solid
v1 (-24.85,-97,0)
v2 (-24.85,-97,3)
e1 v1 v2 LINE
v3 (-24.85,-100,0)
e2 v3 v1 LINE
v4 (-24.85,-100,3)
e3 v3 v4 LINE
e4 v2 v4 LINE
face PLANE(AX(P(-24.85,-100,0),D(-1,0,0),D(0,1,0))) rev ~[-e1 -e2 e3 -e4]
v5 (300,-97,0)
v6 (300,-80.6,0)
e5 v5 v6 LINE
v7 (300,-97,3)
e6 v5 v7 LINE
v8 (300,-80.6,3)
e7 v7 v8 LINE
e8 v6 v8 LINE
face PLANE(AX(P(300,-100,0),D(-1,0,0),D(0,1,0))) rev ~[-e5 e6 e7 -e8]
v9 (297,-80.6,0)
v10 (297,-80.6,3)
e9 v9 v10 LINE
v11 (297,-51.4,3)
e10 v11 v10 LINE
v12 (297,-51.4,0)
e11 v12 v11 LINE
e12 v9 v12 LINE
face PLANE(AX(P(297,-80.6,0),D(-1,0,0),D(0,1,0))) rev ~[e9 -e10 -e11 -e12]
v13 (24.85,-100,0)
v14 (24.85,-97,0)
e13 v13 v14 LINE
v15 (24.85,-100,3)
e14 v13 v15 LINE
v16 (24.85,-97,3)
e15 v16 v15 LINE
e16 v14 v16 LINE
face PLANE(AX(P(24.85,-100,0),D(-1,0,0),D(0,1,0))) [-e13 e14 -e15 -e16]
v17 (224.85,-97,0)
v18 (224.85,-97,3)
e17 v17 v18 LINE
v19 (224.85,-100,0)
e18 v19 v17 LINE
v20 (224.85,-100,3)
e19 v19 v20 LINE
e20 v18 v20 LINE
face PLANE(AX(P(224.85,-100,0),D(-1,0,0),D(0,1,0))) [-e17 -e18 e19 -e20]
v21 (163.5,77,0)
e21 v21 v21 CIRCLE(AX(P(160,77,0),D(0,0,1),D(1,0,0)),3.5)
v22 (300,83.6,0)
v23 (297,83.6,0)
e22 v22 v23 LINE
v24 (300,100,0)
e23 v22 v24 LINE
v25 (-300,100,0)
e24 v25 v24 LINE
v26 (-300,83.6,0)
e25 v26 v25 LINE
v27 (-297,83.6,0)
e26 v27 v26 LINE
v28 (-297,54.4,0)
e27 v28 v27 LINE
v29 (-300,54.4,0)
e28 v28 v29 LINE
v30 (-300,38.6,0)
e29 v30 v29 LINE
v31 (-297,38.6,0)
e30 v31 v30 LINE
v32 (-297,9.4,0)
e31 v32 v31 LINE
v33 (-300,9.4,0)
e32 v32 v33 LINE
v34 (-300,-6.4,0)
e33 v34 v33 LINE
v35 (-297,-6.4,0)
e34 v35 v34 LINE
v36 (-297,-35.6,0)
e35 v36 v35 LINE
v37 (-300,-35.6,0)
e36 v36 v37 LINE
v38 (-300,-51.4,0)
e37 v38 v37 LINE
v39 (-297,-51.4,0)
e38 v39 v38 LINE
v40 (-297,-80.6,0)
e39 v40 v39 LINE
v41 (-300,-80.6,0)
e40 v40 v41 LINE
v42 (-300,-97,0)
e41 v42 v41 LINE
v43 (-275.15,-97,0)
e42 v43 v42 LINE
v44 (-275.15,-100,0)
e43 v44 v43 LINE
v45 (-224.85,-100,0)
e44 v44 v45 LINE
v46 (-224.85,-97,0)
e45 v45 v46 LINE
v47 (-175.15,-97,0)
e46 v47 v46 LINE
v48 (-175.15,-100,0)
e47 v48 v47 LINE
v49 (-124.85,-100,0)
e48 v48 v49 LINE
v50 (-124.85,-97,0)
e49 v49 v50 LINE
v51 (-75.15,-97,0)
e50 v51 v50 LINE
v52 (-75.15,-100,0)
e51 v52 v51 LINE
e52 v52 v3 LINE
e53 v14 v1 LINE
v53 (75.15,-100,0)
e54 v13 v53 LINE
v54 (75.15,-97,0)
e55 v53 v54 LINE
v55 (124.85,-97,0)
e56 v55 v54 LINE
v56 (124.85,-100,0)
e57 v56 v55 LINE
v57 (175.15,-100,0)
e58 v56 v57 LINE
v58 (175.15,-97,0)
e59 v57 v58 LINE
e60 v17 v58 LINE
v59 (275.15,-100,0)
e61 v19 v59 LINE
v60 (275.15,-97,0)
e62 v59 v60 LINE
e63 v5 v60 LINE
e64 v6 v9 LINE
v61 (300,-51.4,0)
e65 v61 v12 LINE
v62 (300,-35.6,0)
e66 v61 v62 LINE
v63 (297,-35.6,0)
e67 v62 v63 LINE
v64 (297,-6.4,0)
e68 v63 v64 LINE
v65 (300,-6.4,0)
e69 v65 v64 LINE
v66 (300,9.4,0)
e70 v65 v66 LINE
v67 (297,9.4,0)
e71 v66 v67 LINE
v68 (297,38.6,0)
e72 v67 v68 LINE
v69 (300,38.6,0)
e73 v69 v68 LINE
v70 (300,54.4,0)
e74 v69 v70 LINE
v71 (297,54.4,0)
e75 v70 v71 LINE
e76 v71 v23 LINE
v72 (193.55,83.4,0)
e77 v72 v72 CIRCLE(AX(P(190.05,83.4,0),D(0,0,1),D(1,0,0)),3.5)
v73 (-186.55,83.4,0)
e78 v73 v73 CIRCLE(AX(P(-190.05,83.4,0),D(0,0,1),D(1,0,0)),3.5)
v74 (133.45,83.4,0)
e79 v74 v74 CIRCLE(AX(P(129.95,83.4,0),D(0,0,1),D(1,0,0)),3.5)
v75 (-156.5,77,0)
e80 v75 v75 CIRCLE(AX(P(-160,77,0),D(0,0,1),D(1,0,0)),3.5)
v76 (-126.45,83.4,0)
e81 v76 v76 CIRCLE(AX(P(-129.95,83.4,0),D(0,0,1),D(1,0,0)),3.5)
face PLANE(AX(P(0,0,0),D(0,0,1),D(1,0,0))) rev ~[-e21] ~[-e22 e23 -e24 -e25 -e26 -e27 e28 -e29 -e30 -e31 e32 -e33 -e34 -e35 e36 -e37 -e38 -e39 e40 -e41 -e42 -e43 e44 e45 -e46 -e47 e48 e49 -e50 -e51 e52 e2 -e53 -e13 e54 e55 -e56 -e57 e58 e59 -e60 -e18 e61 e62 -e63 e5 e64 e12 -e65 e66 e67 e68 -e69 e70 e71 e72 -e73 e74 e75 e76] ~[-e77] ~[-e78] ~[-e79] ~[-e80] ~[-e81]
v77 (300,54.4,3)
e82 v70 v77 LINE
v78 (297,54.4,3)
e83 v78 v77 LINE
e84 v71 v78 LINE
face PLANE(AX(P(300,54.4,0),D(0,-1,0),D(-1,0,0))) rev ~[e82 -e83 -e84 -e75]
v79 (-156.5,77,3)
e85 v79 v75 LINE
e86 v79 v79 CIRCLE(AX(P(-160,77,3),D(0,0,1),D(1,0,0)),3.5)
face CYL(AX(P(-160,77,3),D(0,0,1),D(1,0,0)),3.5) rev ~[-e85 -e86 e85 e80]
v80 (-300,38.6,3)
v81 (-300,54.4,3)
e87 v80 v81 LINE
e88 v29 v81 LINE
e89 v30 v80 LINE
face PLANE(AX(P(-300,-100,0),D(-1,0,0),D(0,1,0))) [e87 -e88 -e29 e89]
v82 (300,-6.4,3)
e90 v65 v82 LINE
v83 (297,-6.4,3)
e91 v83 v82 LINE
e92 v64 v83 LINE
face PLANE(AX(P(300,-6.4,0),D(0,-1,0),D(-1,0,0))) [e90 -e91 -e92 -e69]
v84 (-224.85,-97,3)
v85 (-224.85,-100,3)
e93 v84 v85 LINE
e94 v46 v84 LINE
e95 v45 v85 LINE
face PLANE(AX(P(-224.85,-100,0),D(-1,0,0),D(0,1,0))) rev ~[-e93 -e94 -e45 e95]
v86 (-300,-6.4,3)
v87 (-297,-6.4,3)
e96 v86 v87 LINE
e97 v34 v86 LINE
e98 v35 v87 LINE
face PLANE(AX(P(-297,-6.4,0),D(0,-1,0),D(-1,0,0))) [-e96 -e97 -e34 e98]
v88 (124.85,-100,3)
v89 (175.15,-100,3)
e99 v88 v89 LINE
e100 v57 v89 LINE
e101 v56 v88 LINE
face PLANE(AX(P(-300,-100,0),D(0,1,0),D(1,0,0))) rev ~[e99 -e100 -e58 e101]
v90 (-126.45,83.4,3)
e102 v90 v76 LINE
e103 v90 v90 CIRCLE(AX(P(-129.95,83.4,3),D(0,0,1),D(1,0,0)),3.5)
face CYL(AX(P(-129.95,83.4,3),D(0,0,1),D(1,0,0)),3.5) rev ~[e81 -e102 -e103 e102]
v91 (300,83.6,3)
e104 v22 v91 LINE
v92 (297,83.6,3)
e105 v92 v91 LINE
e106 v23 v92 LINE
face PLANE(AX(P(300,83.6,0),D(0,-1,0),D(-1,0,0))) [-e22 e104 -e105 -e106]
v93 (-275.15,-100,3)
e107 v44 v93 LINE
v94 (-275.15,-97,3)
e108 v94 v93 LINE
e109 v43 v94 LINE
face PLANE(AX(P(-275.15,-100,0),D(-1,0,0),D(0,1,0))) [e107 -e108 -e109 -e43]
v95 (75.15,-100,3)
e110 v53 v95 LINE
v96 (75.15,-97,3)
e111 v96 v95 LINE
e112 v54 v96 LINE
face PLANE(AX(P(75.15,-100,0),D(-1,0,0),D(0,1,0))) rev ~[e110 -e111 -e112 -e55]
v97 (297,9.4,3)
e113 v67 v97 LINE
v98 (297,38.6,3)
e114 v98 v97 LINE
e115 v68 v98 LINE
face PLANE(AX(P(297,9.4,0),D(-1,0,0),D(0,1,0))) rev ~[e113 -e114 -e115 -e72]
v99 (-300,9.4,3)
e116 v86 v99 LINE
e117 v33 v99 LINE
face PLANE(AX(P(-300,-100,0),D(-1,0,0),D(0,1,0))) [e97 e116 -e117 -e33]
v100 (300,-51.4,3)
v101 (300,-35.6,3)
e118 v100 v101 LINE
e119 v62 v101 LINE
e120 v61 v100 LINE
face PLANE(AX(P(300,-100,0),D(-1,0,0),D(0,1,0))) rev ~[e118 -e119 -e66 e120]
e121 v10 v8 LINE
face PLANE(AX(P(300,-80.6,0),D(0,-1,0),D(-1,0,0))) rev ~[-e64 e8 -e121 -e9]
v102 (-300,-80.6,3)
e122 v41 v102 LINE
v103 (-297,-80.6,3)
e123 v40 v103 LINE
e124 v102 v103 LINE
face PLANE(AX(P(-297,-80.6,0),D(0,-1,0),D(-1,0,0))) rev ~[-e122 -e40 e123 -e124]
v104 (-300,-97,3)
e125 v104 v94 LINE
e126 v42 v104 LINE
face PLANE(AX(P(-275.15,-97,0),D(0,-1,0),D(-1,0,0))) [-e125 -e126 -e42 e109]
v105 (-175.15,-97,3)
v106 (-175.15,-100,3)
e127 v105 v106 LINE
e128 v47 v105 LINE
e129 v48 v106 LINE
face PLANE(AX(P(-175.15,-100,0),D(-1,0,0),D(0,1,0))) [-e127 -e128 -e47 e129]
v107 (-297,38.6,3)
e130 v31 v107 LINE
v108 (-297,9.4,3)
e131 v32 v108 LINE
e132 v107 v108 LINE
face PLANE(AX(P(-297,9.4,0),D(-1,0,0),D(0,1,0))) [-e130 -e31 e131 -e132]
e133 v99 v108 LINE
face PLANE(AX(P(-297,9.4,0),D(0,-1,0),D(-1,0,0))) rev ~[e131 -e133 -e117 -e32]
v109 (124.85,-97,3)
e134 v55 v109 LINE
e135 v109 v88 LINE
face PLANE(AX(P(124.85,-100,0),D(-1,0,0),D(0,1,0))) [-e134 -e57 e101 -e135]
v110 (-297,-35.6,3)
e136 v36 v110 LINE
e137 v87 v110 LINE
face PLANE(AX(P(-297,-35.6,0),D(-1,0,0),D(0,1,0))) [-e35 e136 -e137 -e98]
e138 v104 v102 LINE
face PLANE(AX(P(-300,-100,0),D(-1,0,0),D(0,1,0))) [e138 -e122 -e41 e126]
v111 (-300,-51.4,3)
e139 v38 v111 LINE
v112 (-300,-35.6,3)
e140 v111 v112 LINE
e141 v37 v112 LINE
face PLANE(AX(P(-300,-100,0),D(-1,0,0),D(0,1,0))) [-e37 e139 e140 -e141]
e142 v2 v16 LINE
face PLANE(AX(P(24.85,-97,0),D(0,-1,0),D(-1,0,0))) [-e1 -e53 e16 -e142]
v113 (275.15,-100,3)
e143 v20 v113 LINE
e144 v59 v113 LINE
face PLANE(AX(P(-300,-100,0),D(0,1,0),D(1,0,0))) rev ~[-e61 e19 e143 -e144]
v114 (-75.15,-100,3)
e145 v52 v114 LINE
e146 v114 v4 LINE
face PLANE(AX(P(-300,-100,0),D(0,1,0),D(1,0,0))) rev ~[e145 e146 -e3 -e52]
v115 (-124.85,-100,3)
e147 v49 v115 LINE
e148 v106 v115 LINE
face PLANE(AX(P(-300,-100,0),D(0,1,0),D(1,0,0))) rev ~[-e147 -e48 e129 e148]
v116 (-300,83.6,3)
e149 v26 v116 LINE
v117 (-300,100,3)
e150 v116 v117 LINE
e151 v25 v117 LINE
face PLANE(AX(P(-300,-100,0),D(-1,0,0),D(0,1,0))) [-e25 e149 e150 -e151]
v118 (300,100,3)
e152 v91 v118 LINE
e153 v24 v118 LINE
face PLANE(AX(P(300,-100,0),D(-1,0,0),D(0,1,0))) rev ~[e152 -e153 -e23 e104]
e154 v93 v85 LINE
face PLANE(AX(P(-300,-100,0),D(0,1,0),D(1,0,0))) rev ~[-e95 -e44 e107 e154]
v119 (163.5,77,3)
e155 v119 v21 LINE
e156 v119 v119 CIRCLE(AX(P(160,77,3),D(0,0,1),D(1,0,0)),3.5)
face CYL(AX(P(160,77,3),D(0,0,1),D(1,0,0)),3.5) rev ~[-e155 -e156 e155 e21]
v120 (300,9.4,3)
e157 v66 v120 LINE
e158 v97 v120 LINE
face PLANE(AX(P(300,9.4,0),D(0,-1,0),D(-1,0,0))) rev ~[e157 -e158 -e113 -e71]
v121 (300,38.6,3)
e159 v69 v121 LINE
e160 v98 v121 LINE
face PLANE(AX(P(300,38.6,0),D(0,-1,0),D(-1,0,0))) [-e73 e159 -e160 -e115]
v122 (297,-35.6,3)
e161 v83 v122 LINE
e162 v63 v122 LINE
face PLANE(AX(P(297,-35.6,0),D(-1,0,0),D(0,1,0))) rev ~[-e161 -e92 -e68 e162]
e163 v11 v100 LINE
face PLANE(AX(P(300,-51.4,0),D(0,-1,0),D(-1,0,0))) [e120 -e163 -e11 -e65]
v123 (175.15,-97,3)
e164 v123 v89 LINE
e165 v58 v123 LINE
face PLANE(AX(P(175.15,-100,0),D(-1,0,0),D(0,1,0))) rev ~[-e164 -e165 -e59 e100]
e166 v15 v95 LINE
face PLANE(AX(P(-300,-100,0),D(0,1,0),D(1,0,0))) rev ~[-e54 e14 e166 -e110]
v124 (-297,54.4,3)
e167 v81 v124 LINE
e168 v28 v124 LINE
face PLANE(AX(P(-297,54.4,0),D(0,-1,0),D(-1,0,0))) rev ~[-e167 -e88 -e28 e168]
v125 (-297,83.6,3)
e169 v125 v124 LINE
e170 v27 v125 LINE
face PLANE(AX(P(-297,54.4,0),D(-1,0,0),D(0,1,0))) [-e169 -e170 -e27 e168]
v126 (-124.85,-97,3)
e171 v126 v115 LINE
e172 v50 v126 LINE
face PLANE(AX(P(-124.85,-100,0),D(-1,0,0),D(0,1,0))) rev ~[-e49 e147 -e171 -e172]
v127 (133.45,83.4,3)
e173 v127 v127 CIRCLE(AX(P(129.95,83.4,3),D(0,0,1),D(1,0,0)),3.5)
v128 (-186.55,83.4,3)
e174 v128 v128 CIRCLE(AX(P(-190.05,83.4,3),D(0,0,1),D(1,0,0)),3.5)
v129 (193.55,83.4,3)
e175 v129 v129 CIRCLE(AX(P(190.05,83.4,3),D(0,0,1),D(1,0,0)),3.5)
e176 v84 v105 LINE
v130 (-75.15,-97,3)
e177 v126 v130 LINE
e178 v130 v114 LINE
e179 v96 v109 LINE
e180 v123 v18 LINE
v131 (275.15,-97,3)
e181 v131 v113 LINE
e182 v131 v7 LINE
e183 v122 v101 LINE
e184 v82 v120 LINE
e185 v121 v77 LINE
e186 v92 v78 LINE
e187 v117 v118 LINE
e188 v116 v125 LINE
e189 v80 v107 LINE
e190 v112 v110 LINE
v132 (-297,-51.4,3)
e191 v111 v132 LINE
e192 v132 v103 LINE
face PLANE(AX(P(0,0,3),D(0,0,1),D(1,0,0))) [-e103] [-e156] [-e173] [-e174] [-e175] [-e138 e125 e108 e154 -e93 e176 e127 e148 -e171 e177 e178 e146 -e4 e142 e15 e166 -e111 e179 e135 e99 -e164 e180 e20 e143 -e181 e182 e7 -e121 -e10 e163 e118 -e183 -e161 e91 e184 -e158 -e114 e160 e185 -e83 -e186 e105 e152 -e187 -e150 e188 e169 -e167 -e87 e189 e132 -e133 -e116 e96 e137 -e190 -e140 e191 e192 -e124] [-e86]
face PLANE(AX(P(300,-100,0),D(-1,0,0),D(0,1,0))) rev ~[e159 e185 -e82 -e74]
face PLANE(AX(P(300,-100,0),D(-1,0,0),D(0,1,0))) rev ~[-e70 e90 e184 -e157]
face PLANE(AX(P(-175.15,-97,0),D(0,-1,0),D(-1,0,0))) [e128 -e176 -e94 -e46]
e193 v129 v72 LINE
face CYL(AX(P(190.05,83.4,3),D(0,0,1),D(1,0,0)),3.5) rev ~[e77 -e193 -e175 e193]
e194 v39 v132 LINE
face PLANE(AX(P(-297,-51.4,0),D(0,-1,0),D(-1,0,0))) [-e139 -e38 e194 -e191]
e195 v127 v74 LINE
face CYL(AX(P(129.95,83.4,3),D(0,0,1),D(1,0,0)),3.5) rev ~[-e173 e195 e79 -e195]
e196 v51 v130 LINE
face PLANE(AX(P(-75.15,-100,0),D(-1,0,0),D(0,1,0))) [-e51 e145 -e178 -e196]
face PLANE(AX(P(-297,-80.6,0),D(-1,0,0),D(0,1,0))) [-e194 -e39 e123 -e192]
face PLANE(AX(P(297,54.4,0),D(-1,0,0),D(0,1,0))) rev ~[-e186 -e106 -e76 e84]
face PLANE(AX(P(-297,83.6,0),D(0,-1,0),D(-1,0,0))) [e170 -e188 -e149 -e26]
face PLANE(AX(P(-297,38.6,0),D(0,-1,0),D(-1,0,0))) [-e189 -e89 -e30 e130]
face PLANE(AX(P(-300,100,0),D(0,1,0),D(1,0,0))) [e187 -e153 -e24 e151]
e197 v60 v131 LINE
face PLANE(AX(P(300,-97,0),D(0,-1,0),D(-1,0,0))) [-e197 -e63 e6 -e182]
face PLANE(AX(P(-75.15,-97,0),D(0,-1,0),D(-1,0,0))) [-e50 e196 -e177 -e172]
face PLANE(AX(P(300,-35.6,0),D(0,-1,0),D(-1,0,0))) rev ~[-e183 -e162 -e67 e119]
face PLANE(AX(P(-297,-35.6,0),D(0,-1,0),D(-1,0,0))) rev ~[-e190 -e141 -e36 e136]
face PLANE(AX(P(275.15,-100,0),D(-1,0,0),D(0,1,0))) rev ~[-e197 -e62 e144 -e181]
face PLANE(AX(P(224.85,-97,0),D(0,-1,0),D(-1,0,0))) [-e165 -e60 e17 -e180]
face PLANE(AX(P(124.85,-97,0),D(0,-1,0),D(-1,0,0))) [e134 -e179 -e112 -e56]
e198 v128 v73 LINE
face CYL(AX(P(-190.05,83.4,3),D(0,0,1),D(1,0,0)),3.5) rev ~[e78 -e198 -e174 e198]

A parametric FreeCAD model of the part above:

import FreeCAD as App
import Part
import Sketcher


def add_polygon(sketch, points):
    """Adds a closed chain of lines whose ends are joined by coincident constraints."""
    first, n = sketch.GeometryCount, len(points)
    for a, b in zip(points, points[1:] + points[:1]):
        sketch.addGeometry(Part.LineSegment(App.Vector(*a, 0), App.Vector(*b, 0)), False)
    for i in range(n):
        sketch.addConstraint(Sketcher.Constraint("Coincident", first + i, 2, first + (i + 1) % n, 1))

doc = App.newDocument("Part")
params = doc.addObject("Spreadsheet::Sheet", "Params")
for row, (alias, value) in enumerate([
    ("sketch1_width", "600 mm"),
    ("sketch1_height", "200 mm"),
    ("pad1_length", "3 mm"),
    ("sketch2_width", "3 mm"),
    ("sketch2_width2", "49.7 mm"),
    ("sketch2_height", "29.2 mm"),
    ("sketch3_diameter", "7 mm"),
], start=1):
    params.set(f"A{row}", alias)
    params.set(f"B{row}", "=" + value)
    params.setAlias(f"B{row}", alias)

body = doc.addObject("PartDesign::Body", "Body")

# Sketch on XY plane
sketch1 = body.newObject("Sketcher::SketchObject", "Sketch")
sketch1.AttachmentSupport = (doc.getObject("XY_Plane"), [""])
sketch1.MapMode = "FlatFace"
add_polygon(sketch1, [(-300, 100), (-300, -100), (300, -100), (300, 100)])  # lines 0-3
sketch1.addConstraint([
    Sketcher.Constraint("Vertical", 0),
    Sketcher.Constraint("Horizontal", 1),
    Sketcher.Constraint("Vertical", 2),
    Sketcher.Constraint("Horizontal", 3),
    Sketcher.Constraint("Symmetric", 0, 2, 2, 2, -1, 1),
    Sketcher.Constraint("DistanceX", 1, 1, 1, 2, 600.0),
    Sketcher.Constraint("DistanceY", 0, 2, 0, 1, 200.0),
])
sketch1.setExpression("Constraints[9]", "Params.sketch1_width")
sketch1.setExpression("Constraints[10]", "Params.sketch1_height")
pad1 = body.newObject("PartDesign::Pad", "Pad")
pad1.Profile = sketch1
pad1.setExpression("Length", "Params.pad1_length")

# Sketch on XY plane
sketch2 = body.newObject("Sketcher::SketchObject", "Sketch001")
sketch2.AttachmentSupport = (doc.getObject("XY_Plane"), [""])
sketch2.MapMode = "FlatFace"
add_polygon(sketch2, [(300, 83.6), (300, 54.4), (297, 54.4), (297, 83.6)])  # lines 0-3
add_polygon(sketch2, [(-297, 83.6), (-297, 54.4), (-300, 54.4), (-300, 83.6)])  # lines 4-7
add_polygon(sketch2, [(300, 38.6), (300, 9.4), (297, 9.4), (297, 38.6)])  # lines 8-11
add_polygon(sketch2, [(-297, 38.6), (-297, 9.4), (-300, 9.4), (-300, 38.6)])  # lines 12-15
add_polygon(sketch2, [(300, -6.4), (300, -35.6), (297, -35.6), (297, -6.4)])  # lines 16-19
add_polygon(sketch2, [(-297, -6.4), (-297, -35.6), (-300, -35.6), (-300, -6.4)])  # lines 20-23
add_polygon(sketch2, [(300, -51.4), (300, -80.6), (297, -80.6), (297, -51.4)])  # lines 24-27
add_polygon(sketch2, [(-297, -51.4), (-297, -80.6), (-300, -80.6), (-300, -51.4)])  # lines 28-31
add_polygon(sketch2, [(300, -97), (300, -100), (275.15, -100), (275.15, -97)])  # lines 32-35
add_polygon(sketch2, [(-275.15, -97), (-275.15, -100), (-300, -100), (-300, -97)])  # lines 36-39
add_polygon(sketch2, [(224.85, -97), (224.85, -100), (175.15, -100), (175.15, -97)])  # lines 40-43
add_polygon(sketch2, [(-175.15, -97), (-175.15, -100), (-224.85, -100), (-224.85, -97)])  # lines 44-47
add_polygon(sketch2, [(124.85, -97), (124.85, -100), (75.15, -100), (75.15, -97)])  # lines 48-51
add_polygon(sketch2, [(-75.15, -97), (-75.15, -100), (-124.85, -100), (-124.85, -97)])  # lines 52-55
add_polygon(sketch2, [(24.85, -97), (24.85, -100), (-24.85, -100), (-24.85, -97)])  # lines 56-59
sketch2.addConstraint([
    Sketcher.Constraint("Vertical", 0),
    Sketcher.Constraint("Horizontal", 1),
    Sketcher.Constraint("Vertical", 2),
    Sketcher.Constraint("Horizontal", 3),
    Sketcher.Constraint("Vertical", 4),
    Sketcher.Constraint("Horizontal", 5),
    Sketcher.Constraint("Vertical", 6),
    Sketcher.Constraint("Horizontal", 7),
    Sketcher.Constraint("Vertical", 8),
    Sketcher.Constraint("Horizontal", 9),
    Sketcher.Constraint("Vertical", 10),
    Sketcher.Constraint("Horizontal", 11),
    Sketcher.Constraint("Vertical", 12),
    Sketcher.Constraint("Horizontal", 13),
    Sketcher.Constraint("Vertical", 14),
    Sketcher.Constraint("Horizontal", 15),
    Sketcher.Constraint("Vertical", 16),
    Sketcher.Constraint("Horizontal", 17),
    Sketcher.Constraint("Vertical", 18),
    Sketcher.Constraint("Horizontal", 19),
    Sketcher.Constraint("Vertical", 20),
    Sketcher.Constraint("Horizontal", 21),
    Sketcher.Constraint("Vertical", 22),
    Sketcher.Constraint("Horizontal", 23),
    Sketcher.Constraint("Vertical", 24),
    Sketcher.Constraint("Horizontal", 25),
    Sketcher.Constraint("Vertical", 26),
    Sketcher.Constraint("Horizontal", 27),
    Sketcher.Constraint("Vertical", 28),
    Sketcher.Constraint("Horizontal", 29),
    Sketcher.Constraint("Vertical", 30),
    Sketcher.Constraint("Horizontal", 31),
    Sketcher.Constraint("Vertical", 32),
    Sketcher.Constraint("Horizontal", 33),
    Sketcher.Constraint("Vertical", 34),
    Sketcher.Constraint("Horizontal", 35),
    Sketcher.Constraint("Vertical", 36),
    Sketcher.Constraint("Horizontal", 37),
    Sketcher.Constraint("Vertical", 38),
    Sketcher.Constraint("Horizontal", 39),
    Sketcher.Constraint("Vertical", 40),
    Sketcher.Constraint("Horizontal", 41),
    Sketcher.Constraint("Vertical", 42),
    Sketcher.Constraint("Horizontal", 43),
    Sketcher.Constraint("Vertical", 44),
    Sketcher.Constraint("Horizontal", 45),
    Sketcher.Constraint("Vertical", 46),
    Sketcher.Constraint("Horizontal", 47),
    Sketcher.Constraint("Vertical", 48),
    Sketcher.Constraint("Horizontal", 49),
    Sketcher.Constraint("Vertical", 50),
    Sketcher.Constraint("Horizontal", 51),
    Sketcher.Constraint("Vertical", 52),
    Sketcher.Constraint("Horizontal", 53),
    Sketcher.Constraint("Vertical", 54),
    Sketcher.Constraint("Horizontal", 55),
    Sketcher.Constraint("Vertical", 56),
    Sketcher.Constraint("Horizontal", 57),
    Sketcher.Constraint("Vertical", 58),
    Sketcher.Constraint("Horizontal", 59),
    Sketcher.Constraint("Symmetric", 1, 2, 4, 2, -2),
    Sketcher.Constraint("Symmetric", 3, 2, 6, 2, -2),
    Sketcher.Constraint("Symmetric", 9, 2, 12, 2, -2),
    Sketcher.Constraint("Symmetric", 11, 2, 14, 2, -2),
    Sketcher.Constraint("Symmetric", 17, 2, 20, 2, -2),
    Sketcher.Constraint("Symmetric", 19, 2, 22, 2, -2),
    Sketcher.Constraint("Symmetric", 25, 2, 28, 2, -2),
    Sketcher.Constraint("Symmetric", 27, 2, 30, 2, -2),
    Sketcher.Constraint("Symmetric", 33, 2, 36, 2, -2),
    Sketcher.Constraint("Symmetric", 35, 2, 38, 2, -2),
    Sketcher.Constraint("Symmetric", 41, 2, 44, 2, -2),
    Sketcher.Constraint("Symmetric", 43, 2, 46, 2, -2),
    Sketcher.Constraint("Symmetric", 49, 2, 52, 2, -2),
    Sketcher.Constraint("Symmetric", 51, 2, 54, 2, -2),
    Sketcher.Constraint("Horizontal", 37, 2, 40, 2),
    Sketcher.Constraint("Horizontal", 39, 2, 42, 2),
    Sketcher.Constraint("Horizontal", 45, 2, 48, 2),
    Sketcher.Constraint("Horizontal", 47, 2, 50, 2),
    Sketcher.Constraint("Horizontal", 53, 2, 56, 2),
    Sketcher.Constraint("Horizontal", 55, 2, 58, 2),
    Sketcher.Constraint("Vertical", 3, 2, 8, 2),
    Sketcher.Constraint("Vertical", 2, 2, 9, 2),
    Sketcher.Constraint("Vertical", 11, 2, 16, 2),
    Sketcher.Constraint("Vertical", 10, 2, 17, 2),
    Sketcher.Constraint("Vertical", 19, 2, 24, 2),
    Sketcher.Constraint("Vertical", 18, 2, 25, 2),
    Sketcher.Constraint("Vertical", 27, 2, 32, 2),
    Sketcher.Constraint("Equal", 47, 49),
    Sketcher.Constraint("Equal", 55, 57),
    Sketcher.Constraint("Equal", 6, 8),
    Sketcher.Constraint("Equal", 14, 16),
    Sketcher.Constraint("Equal", 22, 24),
    Sketcher.Constraint("Equal", 31, 32),
    Sketcher.Constraint("DistanceX", 1, 2, 1, 1, 3.0),
    Sketcher.Constraint("DistanceX", 41, 2, 41, 1, 49.7),
    Sketcher.Constraint("DistanceY", 0, 2, 0, 1, 29.2),
    Sketcher.Constraint("DistanceX", -1, 1, 0, 2, 300.0),
    Sketcher.Constraint("DistanceY", 32, 2, -1, 1, 100.0),
    Sketcher.Constraint("DistanceY", 8, 2, 0, 2, 45.0),
    Sketcher.Constraint("DistanceY", 16, 2, 8, 2, 45.0),
    Sketcher.Constraint("DistanceY", 24, 2, 16, 2, 45.0),
    Sketcher.Constraint("DistanceX", 41, 2, 33, 2, 100.0),
    Sketcher.Constraint("DistanceX", 48, 2, 40, 2, 100.0),
    Sketcher.Constraint("DistanceX", 56, 2, 48, 2, 100.0),
    Sketcher.Constraint("DistanceX", 52, 2, 56, 2, 100.0),
    Sketcher.Constraint("DistanceY", -1, 1, 0, 2, 54.4),
])
sketch2.setExpression("Constraints[153]", "Params.sketch2_width")
sketch2.setExpression("Constraints[154]", "Params.sketch2_width2")
sketch2.setExpression("Constraints[155]", "Params.sketch2_height")
pocket1 = body.newObject("PartDesign::Pocket", "Pocket")
pocket1.Profile = sketch2
pocket1.Type = "ThroughAll"
pocket1.Reversed = True

# Sketch on XY plane
sketch3 = body.newObject("Sketcher::SketchObject", "Sketch002")
sketch3.AttachmentSupport = (doc.getObject("XY_Plane"), [""])
sketch3.MapMode = "FlatFace"
sketch3.AttachmentOffset = App.Placement(App.Vector(0, 0, 3), App.Rotation())
sketch3.addGeometry([
    Part.Circle(App.Vector(-160, 77, 0), App.Vector(0, 0, 1), 3.5),  # 0
    Part.Circle(App.Vector(-129.95, 83.4, 0), App.Vector(0, 0, 1), 3.5),  # 1
    Part.Circle(App.Vector(129.95, 83.4, 0), App.Vector(0, 0, 1), 3.5),  # 2
    Part.Circle(App.Vector(160, 77, 0), App.Vector(0, 0, 1), 3.5),  # 3
    Part.Circle(App.Vector(190.05, 83.4, 0), App.Vector(0, 0, 1), 3.5),  # 4
    Part.Circle(App.Vector(-190.05, 83.4, 0), App.Vector(0, 0, 1), 3.5),  # 5
], False)
sketch3.addConstraint([
    Sketcher.Constraint("Equal", 0, 1),
    Sketcher.Constraint("Equal", 1, 2),
    Sketcher.Constraint("Equal", 2, 3),
    Sketcher.Constraint("Equal", 3, 4),
    Sketcher.Constraint("Equal", 4, 5),
    Sketcher.Constraint("Symmetric", 1, 3, 2, 3, -2),
    Sketcher.Constraint("Symmetric", 0, 3, 3, 3, -2),
    Sketcher.Constraint("Symmetric", 4, 3, 5, 3, -2),
    Sketcher.Constraint("Horizontal", 2, 3, 4, 3),
    Sketcher.Constraint("Diameter", 0, 7.0),
    Sketcher.Constraint("DistanceX", 0, 3, -1, 1, 160.0),
    Sketcher.Constraint("DistanceY", -1, 1, 0, 3, 77.0),
    Sketcher.Constraint("DistanceX", 1, 3, 4, 3, 320.0),
    Sketcher.Constraint("DistanceY", -1, 1, 1, 3, 83.4),
    Sketcher.Constraint("DistanceX", 1, 3, 2, 3, 259.9),
])
sketch3.setExpression("Constraints[9]", "Params.sketch3_diameter")
pocket2 = body.newObject("PartDesign::Pocket", "Pocket001")
pocket2.Profile = sketch3
pocket2.Type = "ThroughAll"

doc.recompute()
